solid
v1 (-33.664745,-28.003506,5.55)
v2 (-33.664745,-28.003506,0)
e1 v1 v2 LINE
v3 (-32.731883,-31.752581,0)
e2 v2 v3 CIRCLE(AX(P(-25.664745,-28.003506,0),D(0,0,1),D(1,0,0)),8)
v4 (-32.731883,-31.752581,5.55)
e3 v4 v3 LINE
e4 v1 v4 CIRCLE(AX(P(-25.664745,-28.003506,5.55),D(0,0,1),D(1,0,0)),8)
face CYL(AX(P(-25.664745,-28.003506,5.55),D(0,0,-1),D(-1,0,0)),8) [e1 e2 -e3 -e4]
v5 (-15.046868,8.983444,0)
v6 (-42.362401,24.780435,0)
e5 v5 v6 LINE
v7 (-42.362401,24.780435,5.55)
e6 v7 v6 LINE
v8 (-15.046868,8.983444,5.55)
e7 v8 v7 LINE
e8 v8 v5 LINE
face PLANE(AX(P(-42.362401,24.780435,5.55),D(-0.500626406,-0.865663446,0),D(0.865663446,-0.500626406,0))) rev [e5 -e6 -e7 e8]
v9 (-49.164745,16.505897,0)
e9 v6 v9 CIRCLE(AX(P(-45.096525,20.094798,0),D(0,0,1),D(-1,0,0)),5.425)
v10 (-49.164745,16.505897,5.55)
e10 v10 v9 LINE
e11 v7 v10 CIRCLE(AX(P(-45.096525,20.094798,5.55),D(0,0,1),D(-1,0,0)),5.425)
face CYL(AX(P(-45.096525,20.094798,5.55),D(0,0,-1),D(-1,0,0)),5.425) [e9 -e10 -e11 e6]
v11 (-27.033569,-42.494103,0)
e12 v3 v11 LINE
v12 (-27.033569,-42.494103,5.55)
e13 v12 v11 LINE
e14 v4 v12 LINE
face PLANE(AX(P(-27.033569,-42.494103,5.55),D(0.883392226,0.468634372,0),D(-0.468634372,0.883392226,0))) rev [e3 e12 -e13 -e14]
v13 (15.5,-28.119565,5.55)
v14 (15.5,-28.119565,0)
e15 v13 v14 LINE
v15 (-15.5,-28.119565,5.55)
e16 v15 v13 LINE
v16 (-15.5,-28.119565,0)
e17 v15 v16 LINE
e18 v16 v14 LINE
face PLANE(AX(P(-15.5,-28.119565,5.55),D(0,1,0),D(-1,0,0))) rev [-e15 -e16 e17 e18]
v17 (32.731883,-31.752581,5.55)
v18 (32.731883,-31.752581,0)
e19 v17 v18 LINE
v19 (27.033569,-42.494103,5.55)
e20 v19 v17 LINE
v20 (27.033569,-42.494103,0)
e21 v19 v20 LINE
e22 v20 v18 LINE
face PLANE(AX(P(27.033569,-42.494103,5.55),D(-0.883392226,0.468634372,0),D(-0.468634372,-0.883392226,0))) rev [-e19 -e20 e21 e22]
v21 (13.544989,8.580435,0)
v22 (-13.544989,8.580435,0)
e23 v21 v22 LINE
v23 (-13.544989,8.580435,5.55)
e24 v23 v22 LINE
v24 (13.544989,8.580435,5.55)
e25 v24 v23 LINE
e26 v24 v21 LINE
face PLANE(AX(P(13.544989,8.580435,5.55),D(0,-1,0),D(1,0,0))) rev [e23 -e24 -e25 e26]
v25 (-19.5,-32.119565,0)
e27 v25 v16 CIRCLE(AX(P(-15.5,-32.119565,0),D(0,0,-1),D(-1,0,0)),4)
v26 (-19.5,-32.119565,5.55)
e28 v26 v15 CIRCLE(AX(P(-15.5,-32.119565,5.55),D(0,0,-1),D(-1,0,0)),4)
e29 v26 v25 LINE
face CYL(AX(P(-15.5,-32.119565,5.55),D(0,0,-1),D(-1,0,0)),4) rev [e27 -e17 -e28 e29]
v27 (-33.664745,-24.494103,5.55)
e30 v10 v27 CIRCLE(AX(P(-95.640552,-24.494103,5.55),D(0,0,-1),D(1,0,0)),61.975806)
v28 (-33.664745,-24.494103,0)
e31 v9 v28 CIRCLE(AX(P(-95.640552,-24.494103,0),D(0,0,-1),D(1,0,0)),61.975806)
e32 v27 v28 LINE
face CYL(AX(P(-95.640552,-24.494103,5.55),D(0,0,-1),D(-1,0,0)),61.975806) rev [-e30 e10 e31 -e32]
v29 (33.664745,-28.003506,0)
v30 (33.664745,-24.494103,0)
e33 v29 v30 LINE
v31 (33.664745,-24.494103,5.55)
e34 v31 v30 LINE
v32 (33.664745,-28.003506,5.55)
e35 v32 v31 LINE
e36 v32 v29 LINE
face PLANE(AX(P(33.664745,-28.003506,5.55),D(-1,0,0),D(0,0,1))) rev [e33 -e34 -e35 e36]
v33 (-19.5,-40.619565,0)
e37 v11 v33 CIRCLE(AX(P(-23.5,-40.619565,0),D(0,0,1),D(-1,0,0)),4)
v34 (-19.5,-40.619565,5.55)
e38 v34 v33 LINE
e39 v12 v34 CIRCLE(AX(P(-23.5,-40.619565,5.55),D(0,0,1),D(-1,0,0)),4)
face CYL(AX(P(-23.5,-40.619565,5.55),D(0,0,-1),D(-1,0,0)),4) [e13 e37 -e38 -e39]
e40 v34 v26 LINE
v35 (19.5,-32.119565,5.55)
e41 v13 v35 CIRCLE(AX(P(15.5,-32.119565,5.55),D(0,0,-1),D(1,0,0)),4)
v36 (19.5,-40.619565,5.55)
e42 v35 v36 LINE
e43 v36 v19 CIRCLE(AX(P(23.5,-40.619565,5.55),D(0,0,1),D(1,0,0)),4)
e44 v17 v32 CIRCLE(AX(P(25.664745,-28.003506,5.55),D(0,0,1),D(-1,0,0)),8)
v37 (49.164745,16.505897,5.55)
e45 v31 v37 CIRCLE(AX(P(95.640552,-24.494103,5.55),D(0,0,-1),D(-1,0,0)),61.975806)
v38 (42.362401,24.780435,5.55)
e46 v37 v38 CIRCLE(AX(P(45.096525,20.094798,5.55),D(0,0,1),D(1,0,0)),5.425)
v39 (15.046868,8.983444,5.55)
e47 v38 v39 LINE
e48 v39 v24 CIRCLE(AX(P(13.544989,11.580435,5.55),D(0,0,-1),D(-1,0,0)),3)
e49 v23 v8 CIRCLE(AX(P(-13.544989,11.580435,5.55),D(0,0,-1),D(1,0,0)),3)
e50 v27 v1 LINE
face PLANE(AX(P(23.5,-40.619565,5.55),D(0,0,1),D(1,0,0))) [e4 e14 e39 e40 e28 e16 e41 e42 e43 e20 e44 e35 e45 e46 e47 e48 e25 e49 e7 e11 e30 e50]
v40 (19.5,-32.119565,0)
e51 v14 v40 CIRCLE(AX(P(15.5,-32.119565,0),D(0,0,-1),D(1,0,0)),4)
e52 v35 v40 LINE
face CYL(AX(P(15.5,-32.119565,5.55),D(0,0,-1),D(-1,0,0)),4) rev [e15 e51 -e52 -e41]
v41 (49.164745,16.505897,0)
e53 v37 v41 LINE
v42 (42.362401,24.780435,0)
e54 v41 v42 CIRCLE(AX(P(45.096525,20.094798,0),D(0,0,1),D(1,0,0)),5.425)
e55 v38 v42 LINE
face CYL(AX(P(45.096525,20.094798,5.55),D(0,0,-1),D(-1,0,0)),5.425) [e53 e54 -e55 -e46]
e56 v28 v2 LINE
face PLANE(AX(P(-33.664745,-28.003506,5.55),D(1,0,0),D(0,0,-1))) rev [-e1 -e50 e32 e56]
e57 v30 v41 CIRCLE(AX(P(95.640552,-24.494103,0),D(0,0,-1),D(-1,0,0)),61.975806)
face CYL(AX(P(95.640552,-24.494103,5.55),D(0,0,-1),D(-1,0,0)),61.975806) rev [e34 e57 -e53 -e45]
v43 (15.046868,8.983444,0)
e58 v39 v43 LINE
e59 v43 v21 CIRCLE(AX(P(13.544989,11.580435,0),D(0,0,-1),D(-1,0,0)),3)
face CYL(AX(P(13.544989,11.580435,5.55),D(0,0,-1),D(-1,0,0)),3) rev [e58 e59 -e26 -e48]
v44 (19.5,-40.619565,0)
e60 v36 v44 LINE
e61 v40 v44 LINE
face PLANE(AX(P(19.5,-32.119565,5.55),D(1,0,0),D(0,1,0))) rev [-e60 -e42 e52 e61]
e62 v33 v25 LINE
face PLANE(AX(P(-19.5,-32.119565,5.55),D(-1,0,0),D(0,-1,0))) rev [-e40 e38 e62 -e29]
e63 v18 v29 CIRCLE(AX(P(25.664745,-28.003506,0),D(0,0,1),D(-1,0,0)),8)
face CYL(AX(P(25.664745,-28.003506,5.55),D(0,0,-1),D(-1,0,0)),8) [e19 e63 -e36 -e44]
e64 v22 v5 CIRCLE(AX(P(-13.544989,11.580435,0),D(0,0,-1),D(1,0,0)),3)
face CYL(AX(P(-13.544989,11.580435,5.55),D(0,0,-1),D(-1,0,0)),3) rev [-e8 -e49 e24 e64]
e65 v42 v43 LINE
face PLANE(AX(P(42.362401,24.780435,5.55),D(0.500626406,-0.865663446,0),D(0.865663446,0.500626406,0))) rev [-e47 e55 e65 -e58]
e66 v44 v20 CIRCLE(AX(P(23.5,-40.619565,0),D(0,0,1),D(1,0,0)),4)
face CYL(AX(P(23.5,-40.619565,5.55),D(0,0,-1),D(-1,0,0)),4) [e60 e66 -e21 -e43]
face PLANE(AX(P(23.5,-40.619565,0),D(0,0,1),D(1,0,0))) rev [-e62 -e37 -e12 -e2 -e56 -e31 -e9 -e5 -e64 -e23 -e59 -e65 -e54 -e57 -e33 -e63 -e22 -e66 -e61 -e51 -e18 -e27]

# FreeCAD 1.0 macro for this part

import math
import FreeCAD as App
import Part
import Sketcher
from FreeCAD import Vector

doc = App.newDocument("Part")
body = doc.addObject("PartDesign::Body", "Body")

sketch1 = body.newObject("Sketcher::SketchObject", "Sketch")
sketch1.AttachmentSupport = (doc.getObject("XY_Plane"), [""])
sketch1.MapMode = "FlatFace"
sketch1.addGeometry([
    Part.LineSegment(Vector(-15.5, -28.119565, 0), Vector(15.5, -28.119565, 0)),
    Part.ArcOfCircle(Part.Circle(Vector(15.5, -32.119565, 0), Vector(0, 0, 1), 4), math.radians(0), math.radians(90)),
    Part.LineSegment(Vector(19.5, -32.119565, 0), Vector(19.5, -40.619565, 0)),
    Part.ArcOfCircle(Part.Circle(Vector(23.5, -40.619565, 0), Vector(0, 0, 1), 4), math.radians(180), math.radians(332.054313)),
    Part.LineSegment(Vector(27.033569, -42.494103, 0), Vector(32.731883, -31.752581, 0)),
    Part.ArcOfCircle(Part.Circle(Vector(25.664745, -28.003506, 0), Vector(0, 0, 1), 8), math.radians(-27.945687), math.radians(0)),
    Part.LineSegment(Vector(33.664745, -28.003506, 0), Vector(33.664745, -24.494103, 0)),
    Part.ArcOfCircle(Part.Circle(Vector(95.640552, -24.494103, 0), Vector(0, 0, 1), 61.975806), math.radians(138.581925), math.radians(180)),
    Part.ArcOfCircle(Part.Circle(Vector(45.096525, 20.094798, 0), Vector(0, 0, 1), 5.425), math.radians(-41.418075), math.radians(120.264056)),
    Part.LineSegment(Vector(42.362401, 24.780435, 0), Vector(15.046868, 8.983444, 0)),
    Part.ArcOfCircle(Part.Circle(Vector(13.544989, 11.580435, 0), Vector(0, 0, 1), 3), math.radians(-90), math.radians(-59.958549)),
    Part.LineSegment(Vector(13.544989, 8.580435, 0), Vector(-13.544989, 8.580435, 0)),
    Part.ArcOfCircle(Part.Circle(Vector(-13.544989, 11.580435, 0), Vector(0, 0, 1), 3), math.radians(-120.041451), math.radians(-90)),
    Part.LineSegment(Vector(-15.046868, 8.983444, 0), Vector(-42.362401, 24.780435, 0)),
    Part.ArcOfCircle(Part.Circle(Vector(-45.096525, 20.094798, 0), Vector(0, 0, 1), 5.425), math.radians(59.735944), math.radians(221.418075)),
    Part.ArcOfCircle(Part.Circle(Vector(-95.640552, -24.494103, 0), Vector(0, 0, 1), 61.975806), math.radians(0), math.radians(41.418075)),
    Part.LineSegment(Vector(-33.664745, -24.494103, 0), Vector(-33.664745, -28.003506, 0)),
    Part.ArcOfCircle(Part.Circle(Vector(-25.664745, -28.003506, 0), Vector(0, 0, 1), 8), math.radians(-180), math.radians(-152.054313)),
    Part.LineSegment(Vector(-32.731883, -31.752581, 0), Vector(-27.033569, -42.494103, 0)),
    Part.ArcOfCircle(Part.Circle(Vector(-23.5, -40.619565, 0), Vector(0, 0, 1), 4), math.radians(-152.054313), math.radians(0)),
    Part.LineSegment(Vector(-19.5, -40.619565, 0), Vector(-19.5, -32.119565, 0)),
    Part.ArcOfCircle(Part.Circle(Vector(-15.5, -32.119565, 0), Vector(0, 0, 1), 4), math.radians(90), math.radians(180)),
], False)
sketch1.addConstraint([
    Sketcher.Constraint("Tangent", 0, 2, 1, 2),
    Sketcher.Constraint("Tangent", 1, 1, 2, 1),
    Sketcher.Constraint("Tangent", 2, 2, 3, 1),
    Sketcher.Constraint("Tangent", 3, 2, 4, 1),
    Sketcher.Constraint("Tangent", 4, 2, 5, 1),
    Sketcher.Constraint("Tangent", 5, 2, 6, 1),
    Sketcher.Constraint("Tangent", 6, 2, 7, 2),
    Sketcher.Constraint("Tangent", 7, 1, 8, 1),
    Sketcher.Constraint("Coincident", 8, 2, 9, 1),
    Sketcher.Constraint("Tangent", 9, 2, 10, 2),
    Sketcher.Constraint("Tangent", 10, 1, 11, 1),
    Sketcher.Constraint("Tangent", 11, 2, 12, 2),
    Sketcher.Constraint("Tangent", 12, 1, 13, 1),
    Sketcher.Constraint("Coincident", 13, 2, 14, 1),
    Sketcher.Constraint("Tangent", 14, 2, 15, 2),
    Sketcher.Constraint("Tangent", 15, 1, 16, 1),
    Sketcher.Constraint("Tangent", 16, 2, 17, 1),
    Sketcher.Constraint("Tangent", 17, 2, 18, 1),
    Sketcher.Constraint("Tangent", 18, 2, 19, 1),
    Sketcher.Constraint("Tangent", 19, 2, 20, 1),
    Sketcher.Constraint("Tangent", 20, 2, 21, 2),
    Sketcher.Constraint("Tangent", 21, 1, 0, 1),
    Sketcher.Constraint("Horizontal", 0),
    Sketcher.Constraint("Vertical", 2),
    Sketcher.Constraint("Vertical", 6),
    Sketcher.Constraint("Horizontal", 11),
    Sketcher.Constraint("Vertical", 16),
    Sketcher.Constraint("Vertical", 20),
    Sketcher.Constraint("Equal", 1, 3),
    Sketcher.Constraint("Equal", 10, 12),
    Sketcher.Constraint("Equal", 8, 14),
    Sketcher.Constraint("Equal", 7, 15),
    Sketcher.Constraint("Equal", 5, 17),
    Sketcher.Constraint("Equal", 3, 19),
    Sketcher.Constraint("Equal", 19, 21),
    Sketcher.Constraint("Symmetric", 8, 3, 14, 3, -2),
    Sketcher.Constraint("Symmetric", 5, 3, 17, 3, -2),
    Sketcher.Constraint("Symmetric", 3, 3, 19, 3, -2),
    Sketcher.Constraint("Horizontal", 9, 2, 12, 1),
    Sketcher.Constraint("Horizontal", 8, 2, 13, 2),
    Sketcher.Constraint("Radius", 1, 4.0),
    Sketcher.Constraint("Radius", 5, 8.0),
    Sketcher.Constraint("Radius", 10, 3.0),
    Sketcher.Constraint("DistanceX", 0, 1, 0, 2, 31.0),
    Sketcher.Constraint("DistanceY", 2, 2, 2, 1, 8.5),
    Sketcher.Constraint("Radius", 8, 5.425),
    Sketcher.Constraint("DistanceY", 6, 2, 7, 1, 41.0),
    Sketcher.Constraint("DistanceY", 1, 3, 10, 3, 43.7),
    Sketcher.Constraint("DistanceX", 6, 2, 7, 1, 15.5),
    Sketcher.Constraint("DistanceY", 10, 3, 8, 2, 13.2),
    Sketcher.Constraint("DistanceX", 11, 2, 11, 1, 27.089978),
    Sketcher.Constraint("DistanceX", -1, 1, 8, 2, 42.362401),
    Sketcher.Constraint("DistanceY", 6, 1, 6, 2, 3.509403),
    Sketcher.Constraint("DistanceX", -1, 1, 7, 3, 95.640552),
    Sketcher.Constraint("DistanceY", 4, 2, -1, 1, 31.752581),
])
pad1 = body.newObject("PartDesign::Pad", "Pad")
pad1.Profile = sketch1
pad1.Length = 5.55

doc.recompute()
